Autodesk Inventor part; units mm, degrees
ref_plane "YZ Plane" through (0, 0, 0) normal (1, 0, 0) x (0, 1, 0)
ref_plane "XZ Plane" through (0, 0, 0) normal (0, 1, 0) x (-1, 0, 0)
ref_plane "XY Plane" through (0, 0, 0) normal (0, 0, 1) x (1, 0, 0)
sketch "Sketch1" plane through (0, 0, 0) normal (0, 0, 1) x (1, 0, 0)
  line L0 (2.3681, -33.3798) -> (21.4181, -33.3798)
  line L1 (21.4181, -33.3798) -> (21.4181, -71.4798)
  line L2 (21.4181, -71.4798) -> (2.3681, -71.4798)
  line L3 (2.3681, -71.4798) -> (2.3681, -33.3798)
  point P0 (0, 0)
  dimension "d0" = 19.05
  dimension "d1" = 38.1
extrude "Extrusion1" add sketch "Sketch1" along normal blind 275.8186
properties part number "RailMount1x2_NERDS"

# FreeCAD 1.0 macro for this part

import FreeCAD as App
import Part
import Sketcher
from FreeCAD import Vector
Q = App.Units.Quantity

doc = App.newDocument("Part")
body = doc.addObject("PartDesign::Body", "Body")

# Sketch on XY plane
sketch1 = doc.addObject("Sketcher::SketchObject", "Sketch")
body.addObject(sketch1)
sketch1.AttachmentSupport = (doc.XY_Plane, [""])
sketch1.MapMode = "FlatFace"
sketch1.addGeometry([
    Part.LineSegment(Vector(21.4181, -33.3798, 0), Vector(2.3681, -33.3798, 0)),
    Part.LineSegment(Vector(2.3681, -33.3798, 0), Vector(2.3681, -71.4798, 0)),
    Part.LineSegment(Vector(2.3681, -71.4798, 0), Vector(21.4181, -71.4798, 0)),
    Part.LineSegment(Vector(21.4181, -71.4798, 0), Vector(21.4181, -33.3798, 0)),
], False)
sketch1.addConstraint([
    Sketcher.Constraint("Coincident", 0, 2, 1, 1),
    Sketcher.Constraint("Coincident", 1, 2, 2, 1),
    Sketcher.Constraint("Coincident", 2, 2, 3, 1),
    Sketcher.Constraint("Coincident", 3, 2, 0, 1),
    Sketcher.Constraint("Horizontal", 0),
    Sketcher.Constraint("Vertical", 1),
    Sketcher.Constraint("Horizontal", 2),
    Sketcher.Constraint("Vertical", 3),
    Sketcher.Constraint("DistanceY", 1, 2, 1, 1, Q("1.5 in")),
    Sketcher.Constraint("DistanceX", 0, 2, 0, 1, Q("0.75 in")),
    Sketcher.Constraint("DistanceX", -1, 1, 0, 2, 2.368),
    Sketcher.Constraint("DistanceY", 0, 2, -1, 1, 33.3798),
])
pad1 = doc.addObject("PartDesign::Pad", "Pad")
body.addObject(pad1)
pad1.Profile = sketch1
pad1.Length = Q("10.859 in")

doc.recompute()
